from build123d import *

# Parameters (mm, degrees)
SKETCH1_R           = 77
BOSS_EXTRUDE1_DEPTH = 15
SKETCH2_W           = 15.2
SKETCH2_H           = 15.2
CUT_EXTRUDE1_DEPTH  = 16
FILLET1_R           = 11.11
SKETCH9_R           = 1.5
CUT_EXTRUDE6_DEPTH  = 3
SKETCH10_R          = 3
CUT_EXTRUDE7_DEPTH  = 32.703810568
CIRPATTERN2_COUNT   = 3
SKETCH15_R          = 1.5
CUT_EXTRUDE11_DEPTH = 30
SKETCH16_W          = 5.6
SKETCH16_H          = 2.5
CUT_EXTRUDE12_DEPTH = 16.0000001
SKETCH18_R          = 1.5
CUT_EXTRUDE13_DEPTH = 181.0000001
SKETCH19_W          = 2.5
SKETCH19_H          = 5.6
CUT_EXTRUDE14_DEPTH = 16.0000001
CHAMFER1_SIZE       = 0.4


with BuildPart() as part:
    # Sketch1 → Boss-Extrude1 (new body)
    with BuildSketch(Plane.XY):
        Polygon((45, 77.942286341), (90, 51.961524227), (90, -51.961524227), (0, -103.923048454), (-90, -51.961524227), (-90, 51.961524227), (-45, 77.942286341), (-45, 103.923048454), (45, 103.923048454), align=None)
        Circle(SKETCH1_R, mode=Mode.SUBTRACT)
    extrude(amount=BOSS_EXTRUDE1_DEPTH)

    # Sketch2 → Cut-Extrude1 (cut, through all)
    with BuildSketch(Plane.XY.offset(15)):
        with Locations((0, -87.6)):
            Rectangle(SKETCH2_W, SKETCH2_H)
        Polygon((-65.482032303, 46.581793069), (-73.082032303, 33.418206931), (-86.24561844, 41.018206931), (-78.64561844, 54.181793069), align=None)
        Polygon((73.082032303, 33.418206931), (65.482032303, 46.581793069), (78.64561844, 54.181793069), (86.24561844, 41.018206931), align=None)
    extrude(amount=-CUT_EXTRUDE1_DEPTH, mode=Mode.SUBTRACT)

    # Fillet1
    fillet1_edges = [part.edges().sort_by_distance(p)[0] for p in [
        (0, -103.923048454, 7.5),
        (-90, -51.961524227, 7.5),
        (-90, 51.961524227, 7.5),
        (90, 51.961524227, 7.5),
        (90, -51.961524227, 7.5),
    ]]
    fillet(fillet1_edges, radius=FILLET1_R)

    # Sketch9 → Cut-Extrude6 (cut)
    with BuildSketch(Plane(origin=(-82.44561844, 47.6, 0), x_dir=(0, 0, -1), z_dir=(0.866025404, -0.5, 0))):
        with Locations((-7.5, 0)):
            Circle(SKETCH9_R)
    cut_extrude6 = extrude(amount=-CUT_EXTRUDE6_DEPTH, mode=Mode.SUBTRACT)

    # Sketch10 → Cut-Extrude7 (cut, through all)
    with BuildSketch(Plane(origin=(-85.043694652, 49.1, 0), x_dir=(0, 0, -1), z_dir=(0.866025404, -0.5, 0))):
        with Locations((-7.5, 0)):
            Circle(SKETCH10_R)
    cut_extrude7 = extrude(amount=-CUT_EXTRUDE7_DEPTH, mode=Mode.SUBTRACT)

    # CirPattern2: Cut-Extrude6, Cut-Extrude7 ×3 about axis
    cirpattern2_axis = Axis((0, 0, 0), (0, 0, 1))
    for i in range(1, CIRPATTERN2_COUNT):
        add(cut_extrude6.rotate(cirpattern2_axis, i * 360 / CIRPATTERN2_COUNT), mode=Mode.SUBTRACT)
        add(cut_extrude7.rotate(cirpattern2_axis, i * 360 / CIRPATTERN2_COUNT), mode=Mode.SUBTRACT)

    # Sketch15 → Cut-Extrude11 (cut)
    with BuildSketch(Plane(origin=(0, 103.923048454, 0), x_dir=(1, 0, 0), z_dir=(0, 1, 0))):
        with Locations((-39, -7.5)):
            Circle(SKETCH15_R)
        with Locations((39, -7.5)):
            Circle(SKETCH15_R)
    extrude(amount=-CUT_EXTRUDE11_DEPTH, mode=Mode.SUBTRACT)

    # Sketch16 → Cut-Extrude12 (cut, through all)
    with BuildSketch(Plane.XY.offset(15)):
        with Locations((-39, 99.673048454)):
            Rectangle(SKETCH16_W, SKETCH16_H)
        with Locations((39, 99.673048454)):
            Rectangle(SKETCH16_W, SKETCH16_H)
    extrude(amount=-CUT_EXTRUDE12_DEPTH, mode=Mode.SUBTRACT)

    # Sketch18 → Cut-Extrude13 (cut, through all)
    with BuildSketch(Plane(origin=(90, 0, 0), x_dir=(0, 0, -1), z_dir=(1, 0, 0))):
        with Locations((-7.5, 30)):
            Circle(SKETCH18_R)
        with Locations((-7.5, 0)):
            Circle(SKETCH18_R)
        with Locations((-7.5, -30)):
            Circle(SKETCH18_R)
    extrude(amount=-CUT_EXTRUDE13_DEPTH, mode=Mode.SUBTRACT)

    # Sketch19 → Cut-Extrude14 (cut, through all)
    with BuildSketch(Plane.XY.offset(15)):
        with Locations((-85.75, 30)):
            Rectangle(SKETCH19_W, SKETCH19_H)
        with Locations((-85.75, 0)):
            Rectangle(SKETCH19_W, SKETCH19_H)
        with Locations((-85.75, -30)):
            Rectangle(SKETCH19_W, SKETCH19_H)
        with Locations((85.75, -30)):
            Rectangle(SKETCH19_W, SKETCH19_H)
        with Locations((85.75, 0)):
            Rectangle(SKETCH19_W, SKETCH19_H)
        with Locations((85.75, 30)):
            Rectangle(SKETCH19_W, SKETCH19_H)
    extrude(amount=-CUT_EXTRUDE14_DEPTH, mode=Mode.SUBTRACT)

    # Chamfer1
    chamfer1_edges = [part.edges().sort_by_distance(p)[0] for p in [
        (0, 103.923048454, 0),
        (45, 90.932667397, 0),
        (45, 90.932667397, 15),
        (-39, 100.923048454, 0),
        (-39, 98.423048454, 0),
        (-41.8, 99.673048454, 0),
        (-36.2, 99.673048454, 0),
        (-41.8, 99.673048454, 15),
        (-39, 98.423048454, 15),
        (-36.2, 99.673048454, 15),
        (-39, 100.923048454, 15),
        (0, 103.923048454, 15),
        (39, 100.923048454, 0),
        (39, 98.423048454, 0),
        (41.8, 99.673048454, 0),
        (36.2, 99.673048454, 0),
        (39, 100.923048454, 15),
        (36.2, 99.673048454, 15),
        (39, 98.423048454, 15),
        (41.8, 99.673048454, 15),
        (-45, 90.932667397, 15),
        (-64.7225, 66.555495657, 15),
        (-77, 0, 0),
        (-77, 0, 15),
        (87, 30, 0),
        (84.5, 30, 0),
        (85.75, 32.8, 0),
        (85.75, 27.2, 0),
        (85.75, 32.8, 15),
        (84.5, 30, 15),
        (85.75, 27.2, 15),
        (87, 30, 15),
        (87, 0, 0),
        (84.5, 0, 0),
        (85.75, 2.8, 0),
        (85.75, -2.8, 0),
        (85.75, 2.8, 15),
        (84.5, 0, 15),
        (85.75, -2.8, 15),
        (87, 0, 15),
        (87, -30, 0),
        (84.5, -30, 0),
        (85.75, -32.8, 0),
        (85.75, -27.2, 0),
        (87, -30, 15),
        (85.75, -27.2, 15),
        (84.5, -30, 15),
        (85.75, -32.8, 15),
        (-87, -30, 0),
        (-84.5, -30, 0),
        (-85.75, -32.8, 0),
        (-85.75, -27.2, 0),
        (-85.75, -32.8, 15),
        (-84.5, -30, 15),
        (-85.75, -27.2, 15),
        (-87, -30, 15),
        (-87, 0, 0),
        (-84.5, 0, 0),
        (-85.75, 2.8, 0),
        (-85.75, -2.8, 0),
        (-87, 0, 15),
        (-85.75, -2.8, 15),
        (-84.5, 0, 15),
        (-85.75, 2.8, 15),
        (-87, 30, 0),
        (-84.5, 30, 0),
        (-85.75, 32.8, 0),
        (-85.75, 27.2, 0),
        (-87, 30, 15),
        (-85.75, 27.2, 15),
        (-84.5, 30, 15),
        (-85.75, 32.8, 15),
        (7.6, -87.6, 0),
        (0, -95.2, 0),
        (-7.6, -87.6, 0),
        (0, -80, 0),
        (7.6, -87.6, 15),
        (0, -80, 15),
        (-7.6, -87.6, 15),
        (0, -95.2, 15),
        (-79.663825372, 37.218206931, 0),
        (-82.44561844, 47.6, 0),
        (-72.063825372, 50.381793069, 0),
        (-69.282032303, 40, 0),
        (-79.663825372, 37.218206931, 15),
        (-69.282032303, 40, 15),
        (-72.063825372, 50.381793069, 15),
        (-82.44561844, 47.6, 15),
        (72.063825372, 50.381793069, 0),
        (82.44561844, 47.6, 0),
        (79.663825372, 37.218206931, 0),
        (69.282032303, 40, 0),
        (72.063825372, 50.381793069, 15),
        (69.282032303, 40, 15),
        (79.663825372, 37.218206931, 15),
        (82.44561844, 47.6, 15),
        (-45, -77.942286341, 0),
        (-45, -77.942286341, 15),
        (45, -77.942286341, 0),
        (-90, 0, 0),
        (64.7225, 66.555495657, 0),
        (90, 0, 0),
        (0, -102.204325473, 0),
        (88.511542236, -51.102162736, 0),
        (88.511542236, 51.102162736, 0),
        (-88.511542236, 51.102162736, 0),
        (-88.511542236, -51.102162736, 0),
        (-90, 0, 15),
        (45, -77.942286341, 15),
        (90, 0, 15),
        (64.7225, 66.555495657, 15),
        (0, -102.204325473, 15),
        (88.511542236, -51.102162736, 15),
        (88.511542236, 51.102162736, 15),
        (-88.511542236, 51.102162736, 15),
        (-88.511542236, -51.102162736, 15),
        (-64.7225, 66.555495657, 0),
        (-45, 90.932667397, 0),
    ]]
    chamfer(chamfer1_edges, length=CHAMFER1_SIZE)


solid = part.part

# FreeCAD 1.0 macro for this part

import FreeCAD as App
import Part
import Sketcher
from FreeCAD import Vector
Q = App.Units.Quantity


def edges_at(feature, points):
    """Names of the edges that pass closest to the given points."""
    edges = feature.Shape.Edges
    near = lambda p: min(range(len(edges)), key=lambda i: edges[i].distToShape(Part.Vertex(*p))[0])
    return sorted({f"Edge{near(p) + 1}" for p in points})

doc = App.newDocument("Part")
body = doc.addObject("PartDesign::Body", "Body")

# Sketch on XY plane
sketch1 = body.newObject("Sketcher::SketchObject", "Sketch")
sketch1.AttachmentSupport = (doc.getObject("XY_Plane"), [""])
sketch1.MapMode = "FlatFace"
sketch1.addGeometry(Part.LineSegment(Vector(90, 51.961524, 0), Vector(45, 77.942286, 0)), False)
sketch1.addGeometry(Part.LineSegment(Vector(45, 77.942286, 0), Vector(45, 103.923048, 0)), False)
sketch1.addGeometry(Part.LineSegment(Vector(45, 103.923048, 0), Vector(-45, 103.923048, 0)), False)
sketch1.addGeometry(Part.LineSegment(Vector(-45, 103.923048, 0), Vector(-45, 77.942286, 0)), False)
sketch1.addGeometry(Part.LineSegment(Vector(-45, 77.942286, 0), Vector(-90, 51.961524, 0)), False)
sketch1.addGeometry(Part.LineSegment(Vector(-90, 51.961524, 0), Vector(-90, -51.961524, 0)), False)
sketch1.addGeometry(Part.LineSegment(Vector(-90, -51.961524, 0), Vector(0, -103.923048, 0)), False)
sketch1.addGeometry(Part.LineSegment(Vector(0, -103.923048, 0), Vector(90, -51.961524, 0)), False)
sketch1.addGeometry(Part.LineSegment(Vector(90, -51.961524, 0), Vector(90, 51.961524, 0)), False)
sketch1.addGeometry(Part.Circle(Vector(0, 0, 0), Vector(0, 0, 1), 77), False)
sketch1.addConstraint(Sketcher.Constraint("Coincident", 0, 2, 1, 1))
sketch1.addConstraint(Sketcher.Constraint("Coincident", 1, 2, 2, 1))
sketch1.addConstraint(Sketcher.Constraint("Coincident", 2, 2, 3, 1))
sketch1.addConstraint(Sketcher.Constraint("Coincident", 3, 2, 4, 1))
sketch1.addConstraint(Sketcher.Constraint("Coincident", 4, 2, 5, 1))
sketch1.addConstraint(Sketcher.Constraint("Coincident", 5, 2, 6, 1))
sketch1.addConstraint(Sketcher.Constraint("Coincident", 6, 2, 7, 1))
sketch1.addConstraint(Sketcher.Constraint("Coincident", 7, 2, 8, 1))
sketch1.addConstraint(Sketcher.Constraint("Coincident", 8, 2, 0, 1))
sketch1.addConstraint(Sketcher.Constraint("Vertical", 1))
sketch1.addConstraint(Sketcher.Constraint("Horizontal", 2))
sketch1.addConstraint(Sketcher.Constraint("Vertical", 3))
sketch1.addConstraint(Sketcher.Constraint("Vertical", 5))
sketch1.addConstraint(Sketcher.Constraint("Vertical", 8))
sketch1.addConstraint(Sketcher.Constraint("Coincident", 9, 3, -1, 1))
sketch1.addConstraint(Sketcher.Constraint("Symmetric", 4, 2, 7, 2, -1, 1))
sketch1.addConstraint(Sketcher.Constraint("Symmetric", 0, 2, 3, 2, -2))
sketch1.addConstraint(Sketcher.Constraint("PointOnObject", 6, 2, -2))
sketch1.addConstraint(Sketcher.Constraint("Parallel", 0, 6))
sketch1.addConstraint(Sketcher.Constraint("Parallel", 4, 7))
sketch1.addConstraint(Sketcher.Constraint("Horizontal", 5, 2, 7, 2))
sketch1.addConstraint(Sketcher.Constraint("Diameter", 9, 154.0))
sketch1.addConstraint(Sketcher.Constraint("DistanceX", 2, 2, 2, 1, 90.0))
sketch1.addConstraint(Sketcher.Constraint("Angle", 0, Q("150 deg")))
sketch1.addConstraint(Sketcher.Constraint("DistanceX", 4, 2, -1, 1, 90.0))
sketch1.addConstraint(Sketcher.Constraint("DistanceY", 5, 2, 5, 1, 103.923048))
sketch1.addConstraint(Sketcher.Constraint("DistanceY", 1, 1, 1, 2, 25.980762))
pad1 = body.newObject("PartDesign::Pad", "Pad")
pad1.Profile = sketch1
pad1.Length = 15

# Sketch on XY plane
sketch2 = body.newObject("Sketcher::SketchObject", "Sketch001")
sketch2.AttachmentSupport = (doc.getObject("XY_Plane"), [""])
sketch2.MapMode = "FlatFace"
sketch2.AttachmentOffset = App.Placement(Vector(0, 0, 15), App.Rotation())
sketch2.addGeometry(Part.LineSegment(Vector(-7.6, -80, 0), Vector(-7.6, -95.2, 0)), False)
sketch2.addGeometry(Part.LineSegment(Vector(-7.6, -95.2, 0), Vector(7.6, -95.2, 0)), False)
sketch2.addGeometry(Part.LineSegment(Vector(7.6, -95.2, 0), Vector(7.6, -80, 0)), False)
sketch2.addGeometry(Part.LineSegment(Vector(7.6, -80, 0), Vector(-7.6, -80, 0)), False)
sketch2.addGeometry(Part.LineSegment(Vector(-73.082032, 33.418207, 0), Vector(-65.482032, 46.581793, 0)), False)
sketch2.addGeometry(Part.LineSegment(Vector(-65.482032, 46.581793, 0), Vector(-78.645618, 54.181793, 0)), False)
sketch2.addGeometry(Part.LineSegment(Vector(-78.645618, 54.181793, 0), Vector(-86.245618, 41.018207, 0)), False)
sketch2.addGeometry(Part.LineSegment(Vector(-86.245618, 41.018207, 0), Vector(-73.082032, 33.418207, 0)), False)
sketch2.addGeometry(Part.LineSegment(Vector(65.482032, 46.581793, 0), Vector(73.082032, 33.418207, 0)), False)
sketch2.addGeometry(Part.LineSegment(Vector(73.082032, 33.418207, 0), Vector(86.245618, 41.018207, 0)), False)
sketch2.addGeometry(Part.LineSegment(Vector(86.245618, 41.018207, 0), Vector(78.645618, 54.181793, 0)), False)
sketch2.addGeometry(Part.LineSegment(Vector(78.645618, 54.181793, 0), Vector(65.482032, 46.581793, 0)), False)
sketch2.addConstraint(Sketcher.Constraint("Coincident", 0, 2, 1, 1))
sketch2.addConstraint(Sketcher.Constraint("Coincident", 1, 2, 2, 1))
sketch2.addConstraint(Sketcher.Constraint("Coincident", 2, 2, 3, 1))
sketch2.addConstraint(Sketcher.Constraint("Coincident", 3, 2, 0, 1))
sketch2.addConstraint(Sketcher.Constraint("Coincident", 4, 2, 5, 1))
sketch2.addConstraint(Sketcher.Constraint("Coincident", 5, 2, 6, 1))
sketch2.addConstraint(Sketcher.Constraint("Coincident", 6, 2, 7, 1))
sketch2.addConstraint(Sketcher.Constraint("Coincident", 7, 2, 4, 1))
sketch2.addConstraint(Sketcher.Constraint("Coincident", 8, 2, 9, 1))
sketch2.addConstraint(Sketcher.Constraint("Coincident", 9, 2, 10, 1))
sketch2.addConstraint(Sketcher.Constraint("Coincident", 10, 2, 11, 1))
sketch2.addConstraint(Sketcher.Constraint("Coincident", 11, 2, 8, 1))
sketch2.addConstraint(Sketcher.Constraint("Vertical", 0))
sketch2.addConstraint(Sketcher.Constraint("Horizontal", 1))
sketch2.addConstraint(Sketcher.Constraint("Vertical", 2))
sketch2.addConstraint(Sketcher.Constraint("Horizontal", 3))
sketch2.addConstraint(Sketcher.Constraint("Symmetric", 7, 2, 8, 2, -2))
sketch2.addConstraint(Sketcher.Constraint("Symmetric", 6, 2, 9, 2, -2))
sketch2.addConstraint(Sketcher.Constraint("Symmetric", 5, 2, 10, 2, -2))
sketch2.addConstraint(Sketcher.Constraint("Symmetric", 4, 2, 11, 2, -2))
sketch2.addConstraint(Sketcher.Constraint("Perpendicular", 4, 5))
sketch2.addConstraint(Sketcher.Constraint("Perpendicular", 5, 6))
sketch2.addConstraint(Sketcher.Constraint("Perpendicular", 6, 7))
sketch2.addConstraint(Sketcher.Constraint("Equal", 3, 0))
sketch2.addConstraint(Sketcher.Constraint("Equal", 4, 5))
sketch2.addConstraint(Sketcher.Constraint("Angle", 4, Q("60 deg")))
sketch2.addConstraint(Sketcher.Constraint("DistanceX", 1, 1, 1, 2, 15.2))
sketch2.addConstraint(Sketcher.Constraint("DistanceY", 2, 2, -1, 1, 80.0))
sketch2.addConstraint(Sketcher.Constraint("Distance", 4, 15.2))
sketch2.addConstraint(Sketcher.Constraint("DistanceX", 0, 2, -1, 1, 7.6))
sketch2.addConstraint(Sketcher.Constraint("DistanceX", 5, 2, -1, 1, 78.645618))
sketch2.addConstraint(Sketcher.Constraint("DistanceY", -1, 1, 4, 2, 46.581793))
pocket1 = body.newObject("PartDesign::Pocket", "Pocket")
pocket1.Profile = sketch2
pocket1.Type = "ThroughAll"
doc.recompute()

fillet = body.newObject("PartDesign::Fillet", "Fillet")
fillet.Base = (pocket1, edges_at(pocket1, [
    (0, -103.923, 7.5),
    (-90, -51.962, 7.5),
    (-90, 51.962, 7.5),
    (90, 51.962, 7.5),
    (90, -51.962, 7.5),
]))
fillet.Radius = 11.11

# Sketch on an angled plane
sketch3 = body.newObject("Sketcher::SketchObject", "Sketch002")
sketch3.Placement = App.Placement(Vector(-82.445618, 47.6, 0), App.Rotation(Vector(0, 0, -1), Vector(0.5, 0.866025404, 0), Vector(0.866025404, -0.5, 0), "ZXY"))
sketch3.addGeometry(Part.Circle(Vector(-7.5, 0, 0), Vector(0, 0, 1), 1.5), False)
sketch3.addConstraint(Sketcher.Constraint("PointOnObject", 0, 3, -1))
sketch3.addConstraint(Sketcher.Constraint("Diameter", 0, 3.0))
sketch3.addConstraint(Sketcher.Constraint("DistanceX", 0, 3, -1, 1, 7.5))
pocket2 = body.newObject("PartDesign::Pocket", "Pocket001")
pocket2.Profile = sketch3
pocket2.Length = 3

# Sketch on an angled plane
sketch4 = body.newObject("Sketcher::SketchObject", "Sketch003")
sketch4.Placement = App.Placement(Vector(-85.043695, 49.1, 0), App.Rotation(Vector(0, 0, -1), Vector(0.5, 0.866025404, 0), Vector(0.866025404, -0.5, 0), "ZXY"))
sketch4.addGeometry(Part.Circle(Vector(-7.5, 0, 0), Vector(0, 0, 1), 3), False)
sketch4.addConstraint(Sketcher.Constraint("PointOnObject", 0, 3, -1))
sketch4.addConstraint(Sketcher.Constraint("Diameter", 0, 6.0))
sketch4.addConstraint(Sketcher.Constraint("DistanceX", 0, 3, -1, 1, 7.5))
pocket3 = body.newObject("PartDesign::Pocket", "Pocket002")
pocket3.Profile = sketch4
pocket3.Type = "ThroughAll"
doc.recompute()

polarpattern = body.newObject("PartDesign::PolarPattern", "PolarPattern")
polarpattern.Originals = [pocket2, pocket3]
polarpattern.Axis = (doc.getObject("Z_Axis"), [""])
polarpattern.Angle = 360
polarpattern.Occurrences = 3
body.Tip = polarpattern

# Sketch on XZ plane
sketch5 = body.newObject("Sketcher::SketchObject", "Sketch004")
sketch5.AttachmentSupport = (doc.getObject("XZ_Plane"), [""])
sketch5.MapMode = "FlatFace"
sketch5.AttachmentOffset = App.Placement(Vector(0, 0, -103.923048), App.Rotation())
sketch5.addGeometry(Part.Circle(Vector(-39, 7.5, 0), Vector(0, 0, 1), 1.5), False)
sketch5.addGeometry(Part.Circle(Vector(39, 7.5, 0), Vector(0, 0, 1), 1.5), False)
sketch5.addConstraint(Sketcher.Constraint("Equal", 0, 1))
sketch5.addConstraint(Sketcher.Constraint("Symmetric", 0, 3, 1, 3, -2))
sketch5.addConstraint(Sketcher.Constraint("Diameter", 0, 3.0))
sketch5.addConstraint(Sketcher.Constraint("DistanceX", 0, 3, -1, 1, 39.0))
sketch5.addConstraint(Sketcher.Constraint("DistanceY", -1, 1, 0, 3, 7.5))
pocket4 = body.newObject("PartDesign::Pocket", "Pocket003")
pocket4.Profile = sketch5
pocket4.Length = 30
pocket4.Reversed = True

# Sketch on XY plane
sketch6 = body.newObject("Sketcher::SketchObject", "Sketch005")
sketch6.AttachmentSupport = (doc.getObject("XY_Plane"), [""])
sketch6.MapMode = "FlatFace"
sketch6.AttachmentOffset = App.Placement(Vector(0, 0, 15), App.Rotation())
sketch6.addGeometry(Part.LineSegment(Vector(-41.8, 100.923048, 0), Vector(-41.8, 98.423048, 0)), False)
sketch6.addGeometry(Part.LineSegment(Vector(-41.8, 98.423048, 0), Vector(-36.2, 98.423048, 0)), False)
sketch6.addGeometry(Part.LineSegment(Vector(-36.2, 98.423048, 0), Vector(-36.2, 100.923048, 0)), False)
sketch6.addGeometry(Part.LineSegment(Vector(-36.2, 100.923048, 0), Vector(-41.8, 100.923048, 0)), False)
sketch6.addGeometry(Part.LineSegment(Vector(36.2, 100.923048, 0), Vector(36.2, 98.423048, 0)), False)
sketch6.addGeometry(Part.LineSegment(Vector(36.2, 98.423048, 0), Vector(41.8, 98.423048, 0)), False)
sketch6.addGeometry(Part.LineSegment(Vector(41.8, 98.423048, 0), Vector(41.8, 100.923048, 0)), False)
sketch6.addGeometry(Part.LineSegment(Vector(41.8, 100.923048, 0), Vector(36.2, 100.923048, 0)), False)
sketch6.addConstraint(Sketcher.Constraint("Coincident", 0, 2, 1, 1))
sketch6.addConstraint(Sketcher.Constraint("Coincident", 1, 2, 2, 1))
sketch6.addConstraint(Sketcher.Constraint("Coincident", 2, 2, 3, 1))
sketch6.addConstraint(Sketcher.Constraint("Coincident", 3, 2, 0, 1))
sketch6.addConstraint(Sketcher.Constraint("Coincident", 4, 2, 5, 1))
sketch6.addConstraint(Sketcher.Constraint("Coincident", 5, 2, 6, 1))
sketch6.addConstraint(Sketcher.Constraint("Coincident", 6, 2, 7, 1))
sketch6.addConstraint(Sketcher.Constraint("Coincident", 7, 2, 4, 1))
sketch6.addConstraint(Sketcher.Constraint("Vertical", 0))
sketch6.addConstraint(Sketcher.Constraint("Horizontal", 1))
sketch6.addConstraint(Sketcher.Constraint("Vertical", 2))
sketch6.addConstraint(Sketcher.Constraint("Horizontal", 3))
sketch6.addConstraint(Sketcher.Constraint("Vertical", 4))
sketch6.addConstraint(Sketcher.Constraint("Horizontal", 5))
sketch6.addConstraint(Sketcher.Constraint("Vertical", 6))
sketch6.addConstraint(Sketcher.Constraint("Horizontal", 7))
sketch6.addConstraint(Sketcher.Constraint("Symmetric", 1, 2, 4, 2, -2))
sketch6.addConstraint(Sketcher.Constraint("Symmetric", 3, 2, 6, 2, -2))
sketch6.addConstraint(Sketcher.Constraint("DistanceX", 1, 1, 1, 2, 5.6))
sketch6.addConstraint(Sketcher.Constraint("DistanceY", 0, 2, 0, 1, 2.5))
sketch6.addConstraint(Sketcher.Constraint("DistanceX", 0, 2, 4, 2, 78.0))
sketch6.addConstraint(Sketcher.Constraint("DistanceY", -1, 1, 0, 2, 98.423048))
pocket5 = body.newObject("PartDesign::Pocket", "Pocket004")
pocket5.Profile = sketch6
pocket5.Type = "ThroughAll"

# Sketch on YZ plane
sketch7 = body.newObject("Sketcher::SketchObject", "Sketch006")
sketch7.AttachmentSupport = (doc.getObject("YZ_Plane"), [""])
sketch7.MapMode = "FlatFace"
sketch7.AttachmentOffset = App.Placement(Vector(0, 0, 90), App.Rotation())
sketch7.addGeometry(Part.Circle(Vector(30, 7.5, 0), Vector(0, 0, 1), 1.5), False)
sketch7.addGeometry(Part.Circle(Vector(0, 7.5, 0), Vector(0, 0, 1), 1.5), False)
sketch7.addGeometry(Part.Circle(Vector(-30, 7.5, 0), Vector(0, 0, 1), 1.5), False)
sketch7.addConstraint(Sketcher.Constraint("Equal", 0, 1))
sketch7.addConstraint(Sketcher.Constraint("Equal", 1, 2))
sketch7.addConstraint(Sketcher.Constraint("Symmetric", 0, 3, 2, 3, -2))
sketch7.addConstraint(Sketcher.Constraint("PointOnObject", 1, 3, -2))
sketch7.addConstraint(Sketcher.Constraint("Horizontal", 0, 3, 1, 3))
sketch7.addConstraint(Sketcher.Constraint("Diameter", 0, 3.0))
sketch7.addConstraint(Sketcher.Constraint("DistanceX", -1, 1, 0, 3, 30.0))
sketch7.addConstraint(Sketcher.Constraint("DistanceY", -1, 1, 0, 3, 7.5))
pocket6 = body.newObject("PartDesign::Pocket", "Pocket005")
pocket6.Profile = sketch7
pocket6.Type = "ThroughAll"

# Sketch on XY plane
sketch8 = body.newObject("Sketcher::SketchObject", "Sketch007")
sketch8.AttachmentSupport = (doc.getObject("XY_Plane"), [""])
sketch8.MapMode = "FlatFace"
sketch8.AttachmentOffset = App.Placement(Vector(0, 0, 15), App.Rotation())
sketch8.addGeometry(Part.LineSegment(Vector(-87, 32.8, 0), Vector(-87, 27.2, 0)), False)
sketch8.addGeometry(Part.LineSegment(Vector(-87, 27.2, 0), Vector(-84.5, 27.2, 0)), False)
sketch8.addGeometry(Part.LineSegment(Vector(-84.5, 27.2, 0), Vector(-84.5, 32.8, 0)), False)
sketch8.addGeometry(Part.LineSegment(Vector(-84.5, 32.8, 0), Vector(-87, 32.8, 0)), False)
sketch8.addGeometry(Part.LineSegment(Vector(-87, 2.8, 0), Vector(-87, -2.8, 0)), False)
sketch8.addGeometry(Part.LineSegment(Vector(-87, -2.8, 0), Vector(-84.5, -2.8, 0)), False)
sketch8.addGeometry(Part.LineSegment(Vector(-84.5, -2.8, 0), Vector(-84.5, 2.8, 0)), False)
sketch8.addGeometry(Part.LineSegment(Vector(-84.5, 2.8, 0), Vector(-87, 2.8, 0)), False)
sketch8.addGeometry(Part.LineSegment(Vector(-87, -27.2, 0), Vector(-87, -32.8, 0)), False)
sketch8.addGeometry(Part.LineSegment(Vector(-87, -32.8, 0), Vector(-84.5, -32.8, 0)), False)
sketch8.addGeometry(Part.LineSegment(Vector(-84.5, -32.8, 0), Vector(-84.5, -27.2, 0)), False)
sketch8.addGeometry(Part.LineSegment(Vector(-84.5, -27.2, 0), Vector(-87, -27.2, 0)), False)
sketch8.addGeometry(Part.LineSegment(Vector(84.5, -27.2, 0), Vector(84.5, -32.8, 0)), False)
sketch8.addGeometry(Part.LineSegment(Vector(84.5, -32.8, 0), Vector(87, -32.8, 0)), False)
sketch8.addGeometry(Part.LineSegment(Vector(87, -32.8, 0), Vector(87, -27.2, 0)), False)
sketch8.addGeometry(Part.LineSegment(Vector(87, -27.2, 0), Vector(84.5, -27.2, 0)), False)
sketch8.addGeometry(Part.LineSegment(Vector(84.5, 2.8, 0), Vector(84.5, -2.8, 0)), False)
sketch8.addGeometry(Part.LineSegment(Vector(84.5, -2.8, 0), Vector(87, -2.8, 0)), False)
sketch8.addGeometry(Part.LineSegment(Vector(87, -2.8, 0), Vector(87, 2.8, 0)), False)
sketch8.addGeometry(Part.LineSegment(Vector(87, 2.8, 0), Vector(84.5, 2.8, 0)), False)
sketch8.addGeometry(Part.LineSegment(Vector(84.5, 32.8, 0), Vector(84.5, 27.2, 0)), False)
sketch8.addGeometry(Part.LineSegment(Vector(84.5, 27.2, 0), Vector(87, 27.2, 0)), False)
sketch8.addGeometry(Part.LineSegment(Vector(87, 27.2, 0), Vector(87, 32.8, 0)), False)
sketch8.addGeometry(Part.LineSegment(Vector(87, 32.8, 0), Vector(84.5, 32.8, 0)), False)
sketch8.addConstraint(Sketcher.Constraint("Coincident", 0, 2, 1, 1))
sketch8.addConstraint(Sketcher.Constraint("Coincident", 1, 2, 2, 1))
sketch8.addConstraint(Sketcher.Constraint("Coincident", 2, 2, 3, 1))
sketch8.addConstraint(Sketcher.Constraint("Coincident", 3, 2, 0, 1))
sketch8.addConstraint(Sketcher.Constraint("Coincident", 4, 2, 5, 1))
sketch8.addConstraint(Sketcher.Constraint("Coincident", 5, 2, 6, 1))
sketch8.addConstraint(Sketcher.Constraint("Coincident", 6, 2, 7, 1))
sketch8.addConstraint(Sketcher.Constraint("Coincident", 7, 2, 4, 1))
sketch8.addConstraint(Sketcher.Constraint("Coincident", 8, 2, 9, 1))
sketch8.addConstraint(Sketcher.Constraint("Coincident", 9, 2, 10, 1))
sketch8.addConstraint(Sketcher.Constraint("Coincident", 10, 2, 11, 1))
sketch8.addConstraint(Sketcher.Constraint("Coincident", 11, 2, 8, 1))
sketch8.addConstraint(Sketcher.Constraint("Coincident", 12, 2, 13, 1))
sketch8.addConstraint(Sketcher.Constraint("Coincident", 13, 2, 14, 1))
sketch8.addConstraint(Sketcher.Constraint("Coincident", 14, 2, 15, 1))
sketch8.addConstraint(Sketcher.Constraint("Coincident", 15, 2, 12, 1))
sketch8.addConstraint(Sketcher.Constraint("Coincident", 16, 2, 17, 1))
sketch8.addConstraint(Sketcher.Constraint("Coincident", 17, 2, 18, 1))
sketch8.addConstraint(Sketcher.Constraint("Coincident", 18, 2, 19, 1))
sketch8.addConstraint(Sketcher.Constraint("Coincident", 19, 2, 16, 1))
sketch8.addConstraint(Sketcher.Constraint("Coincident", 20, 2, 21, 1))
sketch8.addConstraint(Sketcher.Constraint("Coincident", 21, 2, 22, 1))
sketch8.addConstraint(Sketcher.Constraint("Coincident", 22, 2, 23, 1))
sketch8.addConstraint(Sketcher.Constraint("Coincident", 23, 2, 20, 1))
sketch8.addConstraint(Sketcher.Constraint("Vertical", 0))
sketch8.addConstraint(Sketcher.Constraint("Horizontal", 1))
sketch8.addConstraint(Sketcher.Constraint("Vertical", 2))
sketch8.addConstraint(Sketcher.Constraint("Horizontal", 3))
sketch8.addConstraint(Sketcher.Constraint("Vertical", 4))
sketch8.addConstraint(Sketcher.Constraint("Horizontal", 5))
sketch8.addConstraint(Sketcher.Constraint("Vertical", 6))
sketch8.addConstraint(Sketcher.Constraint("Horizontal", 7))
sketch8.addConstraint(Sketcher.Constraint("Vertical", 8))
sketch8.addConstraint(Sketcher.Constraint("Horizontal", 9))
sketch8.addConstraint(Sketcher.Constraint("Vertical", 10))
sketch8.addConstraint(Sketcher.Constraint("Horizontal", 11))
sketch8.addConstraint(Sketcher.Constraint("Vertical", 12))
sketch8.addConstraint(Sketcher.Constraint("Horizontal", 13))
sketch8.addConstraint(Sketcher.Constraint("Vertical", 14))
sketch8.addConstraint(Sketcher.Constraint("Horizontal", 15))
sketch8.addConstraint(Sketcher.Constraint("Vertical", 16))
sketch8.addConstraint(Sketcher.Constraint("Horizontal", 17))
sketch8.addConstraint(Sketcher.Constraint("Vertical", 18))
sketch8.addConstraint(Sketcher.Constraint("Horizontal", 19))
sketch8.addConstraint(Sketcher.Constraint("Vertical", 20))
sketch8.addConstraint(Sketcher.Constraint("Horizontal", 21))
sketch8.addConstraint(Sketcher.Constraint("Vertical", 22))
sketch8.addConstraint(Sketcher.Constraint("Horizontal", 23))
sketch8.addConstraint(Sketcher.Constraint("Symmetric", 2, 2, 12, 2, -1, 1))
sketch8.addConstraint(Sketcher.Constraint("Symmetric", 0, 2, 14, 2, -1, 1))
sketch8.addConstraint(Sketcher.Constraint("Symmetric", 6, 2, 16, 2, -1, 1))
sketch8.addConstraint(Sketcher.Constraint("Symmetric", 4, 2, 18, 2, -1, 1))
sketch8.addConstraint(Sketcher.Constraint("Symmetric", 10, 2, 20, 2, -1, 1))
sketch8.addConstraint(Sketcher.Constraint("Symmetric", 8, 2, 22, 2, -1, 1))
sketch8.addConstraint(Sketcher.Constraint("Symmetric", 9, 2, 12, 2, -2))
sketch8.addConstraint(Sketcher.Constraint("Symmetric", 11, 2, 14, 2, -2))
sketch8.addConstraint(Sketcher.Constraint("Horizontal", 5, 2, 16, 2))
sketch8.addConstraint(Sketcher.Constraint("Vertical", 3, 2, 4, 2))
sketch8.addConstraint(Sketcher.Constraint("Vertical", 2, 2, 5, 2))
sketch8.addConstraint(Sketcher.Constraint("Equal", 2, 4))
sketch8.addConstraint(Sketcher.Constraint("DistanceX", 1, 1, 1, 2, 2.5))
sketch8.addConstraint(Sketcher.Constraint("DistanceY", 0, 2, 0, 1, 5.6))
sketch8.addConstraint(Sketcher.Constraint("DistanceX", 0, 2, -1, 1, 87.0))
sketch8.addConstraint(Sketcher.Constraint("DistanceY", 4, 2, 0, 2, 30.0))
pocket7 = body.newObject("PartDesign::Pocket", "Pocket006")
pocket7.Profile = sketch8
pocket7.Type = "ThroughAll"
doc.recompute()

chamfer = body.newObject("PartDesign::Chamfer", "Chamfer")
chamfer.Base = (pocket7, edges_at(pocket7, [
    (0, 103.923, 0),
    (45, 90.933, 0),
    (45, 90.933, 15),
    (-39, 100.923, 0),
    (-39, 98.423, 0),
    (-41.8, 99.673, 0),
    (-36.2, 99.673, 0),
    (-41.8, 99.673, 15),
    (-39, 98.423, 15),
    (-36.2, 99.673, 15),
    (-39, 100.923, 15),
    (0, 103.923, 15),
    (39, 100.923, 0),
    (39, 98.423, 0),
    (41.8, 99.673, 0),
    (36.2, 99.673, 0),
    (39, 100.923, 15),
    (36.2, 99.673, 15),
    (39, 98.423, 15),
    (41.8, 99.673, 15),
    (-45, 90.933, 15),
    (-64.722, 66.555, 15),
    (-77, 0, 0),
    (-77, 0, 15),
    (87, 30, 0),
    (84.5, 30, 0),
    (85.75, 32.8, 0),
    (85.75, 27.2, 0),
    (85.75, 32.8, 15),
    (84.5, 30, 15),
    (85.75, 27.2, 15),
    (87, 30, 15),
    (87, 0, 0),
    (84.5, 0, 0),
    (85.75, 2.8, 0),
    (85.75, -2.8, 0),
    (85.75, 2.8, 15),
    (84.5, 0, 15),
    (85.75, -2.8, 15),
    (87, 0, 15),
    (87, -30, 0),
    (84.5, -30, 0),
    (85.75, -32.8, 0),
    (85.75, -27.2, 0),
    (87, -30, 15),
    (85.75, -27.2, 15),
    (84.5, -30, 15),
    (85.75, -32.8, 15),
    (-87, -30, 0),
    (-84.5, -30, 0),
    (-85.75, -32.8, 0),
    (-85.75, -27.2, 0),
    (-85.75, -32.8, 15),
    (-84.5, -30, 15),
    (-85.75, -27.2, 15),
    (-87, -30, 15),
    (-87, 0, 0),
    (-84.5, 0, 0),
    (-85.75, 2.8, 0),
    (-85.75, -2.8, 0),
    (-87, 0, 15),
    (-85.75, -2.8, 15),
    (-84.5, 0, 15),
    (-85.75, 2.8, 15),
    (-87, 30, 0),
    (-84.5, 30, 0),
    (-85.75, 32.8, 0),
    (-85.75, 27.2, 0),
    (-87, 30, 15),
    (-85.75, 27.2, 15),
    (-84.5, 30, 15),
    (-85.75, 32.8, 15),
    (7.6, -87.6, 0),
    (0, -95.2, 0),
    (-7.6, -87.6, 0),
    (0, -80, 0),
    (7.6, -87.6, 15),
    (0, -80, 15),
    (-7.6, -87.6, 15),
    (0, -95.2, 15),
    (-79.664, 37.218, 0),
    (-82.446, 47.6, 0),
    (-72.064, 50.382, 0),
    (-69.282, 40, 0),
    (-79.664, 37.218, 15),
    (-69.282, 40, 15),
    (-72.064, 50.382, 15),
    (-82.446, 47.6, 15),
    (72.064, 50.382, 0),
    (82.446, 47.6, 0),
    (79.664, 37.218, 0),
    (69.282, 40, 0),
    (72.064, 50.382, 15),
    (69.282, 40, 15),
    (79.664, 37.218, 15),
    (82.446, 47.6, 15),
    (-45, -77.942, 0),
    (-45, -77.942, 15),
    (45, -77.942, 0),
    (-90, 0, 0),
    (64.722, 66.555, 0),
    (90, 0, 0),
    (0, -102.204, 0),
    (88.512, -51.102, 0),
    (88.512, 51.102, 0),
    (-88.512, 51.102, 0),
    (-88.512, -51.102, 0),
    (-90, 0, 15),
    (45, -77.942, 15),
    (90, 0, 15),
    (64.722, 66.555, 15),
    (0, -102.204, 15),
    (88.512, -51.102, 15),
    (88.512, 51.102, 15),
    (-88.512, 51.102, 15),
    (-88.512, -51.102, 15),
    (-64.722, 66.555, 0),
    (-45, 90.933, 0),
]))
chamfer.Size = 0.4

doc.recompute()
